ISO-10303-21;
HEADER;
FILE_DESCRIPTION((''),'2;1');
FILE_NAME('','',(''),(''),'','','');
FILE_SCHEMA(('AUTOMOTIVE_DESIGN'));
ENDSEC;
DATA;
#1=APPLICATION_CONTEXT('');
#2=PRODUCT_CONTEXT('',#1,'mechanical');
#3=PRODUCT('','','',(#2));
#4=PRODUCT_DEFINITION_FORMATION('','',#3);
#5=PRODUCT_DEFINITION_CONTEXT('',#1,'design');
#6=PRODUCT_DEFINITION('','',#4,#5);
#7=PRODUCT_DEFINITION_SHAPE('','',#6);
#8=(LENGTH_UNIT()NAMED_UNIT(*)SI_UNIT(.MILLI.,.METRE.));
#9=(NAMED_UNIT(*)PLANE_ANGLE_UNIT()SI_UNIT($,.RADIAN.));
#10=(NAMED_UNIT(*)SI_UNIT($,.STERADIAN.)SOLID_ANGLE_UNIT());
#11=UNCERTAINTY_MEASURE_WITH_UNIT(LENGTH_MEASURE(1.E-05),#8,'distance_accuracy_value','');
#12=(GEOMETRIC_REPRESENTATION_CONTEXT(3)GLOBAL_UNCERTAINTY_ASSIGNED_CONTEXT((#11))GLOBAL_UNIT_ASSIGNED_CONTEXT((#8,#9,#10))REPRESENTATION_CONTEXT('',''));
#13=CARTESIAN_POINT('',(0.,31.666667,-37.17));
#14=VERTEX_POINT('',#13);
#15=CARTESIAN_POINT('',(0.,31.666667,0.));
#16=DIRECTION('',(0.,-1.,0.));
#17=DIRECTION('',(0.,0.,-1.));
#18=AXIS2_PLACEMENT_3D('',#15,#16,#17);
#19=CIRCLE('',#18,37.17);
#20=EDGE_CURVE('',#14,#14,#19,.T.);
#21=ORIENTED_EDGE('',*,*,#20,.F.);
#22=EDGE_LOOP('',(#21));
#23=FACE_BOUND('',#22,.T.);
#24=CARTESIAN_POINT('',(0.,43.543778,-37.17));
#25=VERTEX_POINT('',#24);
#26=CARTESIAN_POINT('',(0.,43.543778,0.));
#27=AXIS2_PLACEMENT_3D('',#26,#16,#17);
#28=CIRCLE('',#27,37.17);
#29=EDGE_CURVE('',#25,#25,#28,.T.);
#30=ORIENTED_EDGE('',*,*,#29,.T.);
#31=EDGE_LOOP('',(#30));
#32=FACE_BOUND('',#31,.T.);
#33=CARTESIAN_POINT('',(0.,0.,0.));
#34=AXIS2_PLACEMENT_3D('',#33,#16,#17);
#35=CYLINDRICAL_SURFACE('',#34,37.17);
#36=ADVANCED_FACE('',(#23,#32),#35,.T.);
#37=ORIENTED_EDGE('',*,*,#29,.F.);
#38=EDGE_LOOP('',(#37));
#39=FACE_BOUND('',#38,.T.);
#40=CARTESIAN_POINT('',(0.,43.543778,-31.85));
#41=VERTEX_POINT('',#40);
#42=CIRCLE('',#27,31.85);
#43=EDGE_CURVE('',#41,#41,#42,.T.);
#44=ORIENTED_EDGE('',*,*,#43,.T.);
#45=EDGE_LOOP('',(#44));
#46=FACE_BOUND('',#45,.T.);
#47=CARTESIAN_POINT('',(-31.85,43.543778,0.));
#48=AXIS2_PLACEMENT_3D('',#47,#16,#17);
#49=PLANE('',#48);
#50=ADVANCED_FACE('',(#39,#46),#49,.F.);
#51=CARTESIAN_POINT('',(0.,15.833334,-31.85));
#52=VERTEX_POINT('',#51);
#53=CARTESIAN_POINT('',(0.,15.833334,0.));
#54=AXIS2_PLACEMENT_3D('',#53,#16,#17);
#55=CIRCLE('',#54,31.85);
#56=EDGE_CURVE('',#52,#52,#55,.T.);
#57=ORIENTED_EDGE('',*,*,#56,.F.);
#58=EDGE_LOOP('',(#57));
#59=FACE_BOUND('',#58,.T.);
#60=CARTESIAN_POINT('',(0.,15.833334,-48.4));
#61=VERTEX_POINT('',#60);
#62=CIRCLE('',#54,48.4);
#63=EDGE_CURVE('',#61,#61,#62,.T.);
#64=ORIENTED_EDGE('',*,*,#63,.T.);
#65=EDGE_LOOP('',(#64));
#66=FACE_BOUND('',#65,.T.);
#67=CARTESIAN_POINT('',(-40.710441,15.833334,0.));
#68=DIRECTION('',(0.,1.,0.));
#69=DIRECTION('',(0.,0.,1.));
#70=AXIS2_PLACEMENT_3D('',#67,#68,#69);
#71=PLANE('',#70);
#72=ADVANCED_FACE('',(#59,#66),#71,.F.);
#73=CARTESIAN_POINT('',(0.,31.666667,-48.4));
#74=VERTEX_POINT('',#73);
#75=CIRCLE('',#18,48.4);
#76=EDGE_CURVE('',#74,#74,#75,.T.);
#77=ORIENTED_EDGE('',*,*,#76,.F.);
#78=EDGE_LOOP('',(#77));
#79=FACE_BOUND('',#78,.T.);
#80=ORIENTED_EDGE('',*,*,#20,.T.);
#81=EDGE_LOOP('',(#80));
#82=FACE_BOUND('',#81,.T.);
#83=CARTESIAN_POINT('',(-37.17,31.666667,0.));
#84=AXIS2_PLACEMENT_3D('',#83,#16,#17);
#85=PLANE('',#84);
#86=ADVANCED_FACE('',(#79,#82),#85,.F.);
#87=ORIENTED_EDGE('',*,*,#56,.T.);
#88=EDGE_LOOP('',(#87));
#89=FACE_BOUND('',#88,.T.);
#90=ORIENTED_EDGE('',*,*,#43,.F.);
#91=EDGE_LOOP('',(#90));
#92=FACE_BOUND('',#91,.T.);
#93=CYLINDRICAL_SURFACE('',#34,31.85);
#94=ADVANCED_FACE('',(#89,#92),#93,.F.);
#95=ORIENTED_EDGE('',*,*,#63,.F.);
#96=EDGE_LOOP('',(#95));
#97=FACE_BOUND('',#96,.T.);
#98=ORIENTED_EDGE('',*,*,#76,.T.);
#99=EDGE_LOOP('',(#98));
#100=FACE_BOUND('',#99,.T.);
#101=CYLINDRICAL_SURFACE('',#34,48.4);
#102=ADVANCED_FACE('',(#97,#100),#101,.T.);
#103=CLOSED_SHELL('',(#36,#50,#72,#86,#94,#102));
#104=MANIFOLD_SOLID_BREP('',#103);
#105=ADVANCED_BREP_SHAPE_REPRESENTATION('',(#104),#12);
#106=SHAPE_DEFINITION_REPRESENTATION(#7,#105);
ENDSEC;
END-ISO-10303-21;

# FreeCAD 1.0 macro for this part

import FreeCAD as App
import Part
import Sketcher

V = App.Vector


def add_polygon(sketch, points):
    """Adds a closed chain of lines whose ends are joined by coincident constraints."""
    first, n = sketch.GeometryCount, len(points)
    for a, b in zip(points, points[1:] + points[:1]):
        sketch.addGeometry(Part.LineSegment(App.Vector(*a, 0), App.Vector(*b, 0)), False)
    for i in range(n):
        sketch.addConstraint(Sketcher.Constraint("Coincident", first + i, 2, first + (i + 1) % n, 1))

doc = App.newDocument("Part")
body = doc.addObject("PartDesign::Body", "Body")

# Sketch on XY plane
sketch1 = body.newObject("Sketcher::SketchObject", "Sketch")
sketch1.AttachmentSupport = (doc.getObject("XY_Plane"), [""])
sketch1.MapMode = "FlatFace"
add_polygon(sketch1, [(-32, 16), (-32, 44), (-37, 44), (-37, 32), (-48, 32), (-48, 16)])  # lines 0-5
sketch1.addConstraint([
    Sketcher.Constraint("Vertical", 0),
    Sketcher.Constraint("Horizontal", 1),
    Sketcher.Constraint("Vertical", 2),
    Sketcher.Constraint("Horizontal", 3),
    Sketcher.Constraint("Vertical", 4),
    Sketcher.Constraint("Horizontal", 5),
    Sketcher.Constraint("DistanceX", 1, 2, 1, 1, 5.32),
    Sketcher.Constraint("DistanceX", 3, 2, 3, 1, 11.23),
    Sketcher.Constraint("DistanceX", 3, 2, -1, 1, 48.4),
    Sketcher.Constraint("DistanceY", 2, 2, 2, 1, 11.877111),
    Sketcher.Constraint("DistanceY", 0, 1, 0, 2, 27.710444),
    Sketcher.Constraint("DistanceY", -1, 1, 0, 2, 43.543778),
])
revolution = body.newObject("PartDesign::Revolution", "Revolution")
revolution.Profile = sketch1
revolution.ReferenceAxis = (sketch1, ["V_Axis"])
revolution.Angle = 360

doc.recompute()
